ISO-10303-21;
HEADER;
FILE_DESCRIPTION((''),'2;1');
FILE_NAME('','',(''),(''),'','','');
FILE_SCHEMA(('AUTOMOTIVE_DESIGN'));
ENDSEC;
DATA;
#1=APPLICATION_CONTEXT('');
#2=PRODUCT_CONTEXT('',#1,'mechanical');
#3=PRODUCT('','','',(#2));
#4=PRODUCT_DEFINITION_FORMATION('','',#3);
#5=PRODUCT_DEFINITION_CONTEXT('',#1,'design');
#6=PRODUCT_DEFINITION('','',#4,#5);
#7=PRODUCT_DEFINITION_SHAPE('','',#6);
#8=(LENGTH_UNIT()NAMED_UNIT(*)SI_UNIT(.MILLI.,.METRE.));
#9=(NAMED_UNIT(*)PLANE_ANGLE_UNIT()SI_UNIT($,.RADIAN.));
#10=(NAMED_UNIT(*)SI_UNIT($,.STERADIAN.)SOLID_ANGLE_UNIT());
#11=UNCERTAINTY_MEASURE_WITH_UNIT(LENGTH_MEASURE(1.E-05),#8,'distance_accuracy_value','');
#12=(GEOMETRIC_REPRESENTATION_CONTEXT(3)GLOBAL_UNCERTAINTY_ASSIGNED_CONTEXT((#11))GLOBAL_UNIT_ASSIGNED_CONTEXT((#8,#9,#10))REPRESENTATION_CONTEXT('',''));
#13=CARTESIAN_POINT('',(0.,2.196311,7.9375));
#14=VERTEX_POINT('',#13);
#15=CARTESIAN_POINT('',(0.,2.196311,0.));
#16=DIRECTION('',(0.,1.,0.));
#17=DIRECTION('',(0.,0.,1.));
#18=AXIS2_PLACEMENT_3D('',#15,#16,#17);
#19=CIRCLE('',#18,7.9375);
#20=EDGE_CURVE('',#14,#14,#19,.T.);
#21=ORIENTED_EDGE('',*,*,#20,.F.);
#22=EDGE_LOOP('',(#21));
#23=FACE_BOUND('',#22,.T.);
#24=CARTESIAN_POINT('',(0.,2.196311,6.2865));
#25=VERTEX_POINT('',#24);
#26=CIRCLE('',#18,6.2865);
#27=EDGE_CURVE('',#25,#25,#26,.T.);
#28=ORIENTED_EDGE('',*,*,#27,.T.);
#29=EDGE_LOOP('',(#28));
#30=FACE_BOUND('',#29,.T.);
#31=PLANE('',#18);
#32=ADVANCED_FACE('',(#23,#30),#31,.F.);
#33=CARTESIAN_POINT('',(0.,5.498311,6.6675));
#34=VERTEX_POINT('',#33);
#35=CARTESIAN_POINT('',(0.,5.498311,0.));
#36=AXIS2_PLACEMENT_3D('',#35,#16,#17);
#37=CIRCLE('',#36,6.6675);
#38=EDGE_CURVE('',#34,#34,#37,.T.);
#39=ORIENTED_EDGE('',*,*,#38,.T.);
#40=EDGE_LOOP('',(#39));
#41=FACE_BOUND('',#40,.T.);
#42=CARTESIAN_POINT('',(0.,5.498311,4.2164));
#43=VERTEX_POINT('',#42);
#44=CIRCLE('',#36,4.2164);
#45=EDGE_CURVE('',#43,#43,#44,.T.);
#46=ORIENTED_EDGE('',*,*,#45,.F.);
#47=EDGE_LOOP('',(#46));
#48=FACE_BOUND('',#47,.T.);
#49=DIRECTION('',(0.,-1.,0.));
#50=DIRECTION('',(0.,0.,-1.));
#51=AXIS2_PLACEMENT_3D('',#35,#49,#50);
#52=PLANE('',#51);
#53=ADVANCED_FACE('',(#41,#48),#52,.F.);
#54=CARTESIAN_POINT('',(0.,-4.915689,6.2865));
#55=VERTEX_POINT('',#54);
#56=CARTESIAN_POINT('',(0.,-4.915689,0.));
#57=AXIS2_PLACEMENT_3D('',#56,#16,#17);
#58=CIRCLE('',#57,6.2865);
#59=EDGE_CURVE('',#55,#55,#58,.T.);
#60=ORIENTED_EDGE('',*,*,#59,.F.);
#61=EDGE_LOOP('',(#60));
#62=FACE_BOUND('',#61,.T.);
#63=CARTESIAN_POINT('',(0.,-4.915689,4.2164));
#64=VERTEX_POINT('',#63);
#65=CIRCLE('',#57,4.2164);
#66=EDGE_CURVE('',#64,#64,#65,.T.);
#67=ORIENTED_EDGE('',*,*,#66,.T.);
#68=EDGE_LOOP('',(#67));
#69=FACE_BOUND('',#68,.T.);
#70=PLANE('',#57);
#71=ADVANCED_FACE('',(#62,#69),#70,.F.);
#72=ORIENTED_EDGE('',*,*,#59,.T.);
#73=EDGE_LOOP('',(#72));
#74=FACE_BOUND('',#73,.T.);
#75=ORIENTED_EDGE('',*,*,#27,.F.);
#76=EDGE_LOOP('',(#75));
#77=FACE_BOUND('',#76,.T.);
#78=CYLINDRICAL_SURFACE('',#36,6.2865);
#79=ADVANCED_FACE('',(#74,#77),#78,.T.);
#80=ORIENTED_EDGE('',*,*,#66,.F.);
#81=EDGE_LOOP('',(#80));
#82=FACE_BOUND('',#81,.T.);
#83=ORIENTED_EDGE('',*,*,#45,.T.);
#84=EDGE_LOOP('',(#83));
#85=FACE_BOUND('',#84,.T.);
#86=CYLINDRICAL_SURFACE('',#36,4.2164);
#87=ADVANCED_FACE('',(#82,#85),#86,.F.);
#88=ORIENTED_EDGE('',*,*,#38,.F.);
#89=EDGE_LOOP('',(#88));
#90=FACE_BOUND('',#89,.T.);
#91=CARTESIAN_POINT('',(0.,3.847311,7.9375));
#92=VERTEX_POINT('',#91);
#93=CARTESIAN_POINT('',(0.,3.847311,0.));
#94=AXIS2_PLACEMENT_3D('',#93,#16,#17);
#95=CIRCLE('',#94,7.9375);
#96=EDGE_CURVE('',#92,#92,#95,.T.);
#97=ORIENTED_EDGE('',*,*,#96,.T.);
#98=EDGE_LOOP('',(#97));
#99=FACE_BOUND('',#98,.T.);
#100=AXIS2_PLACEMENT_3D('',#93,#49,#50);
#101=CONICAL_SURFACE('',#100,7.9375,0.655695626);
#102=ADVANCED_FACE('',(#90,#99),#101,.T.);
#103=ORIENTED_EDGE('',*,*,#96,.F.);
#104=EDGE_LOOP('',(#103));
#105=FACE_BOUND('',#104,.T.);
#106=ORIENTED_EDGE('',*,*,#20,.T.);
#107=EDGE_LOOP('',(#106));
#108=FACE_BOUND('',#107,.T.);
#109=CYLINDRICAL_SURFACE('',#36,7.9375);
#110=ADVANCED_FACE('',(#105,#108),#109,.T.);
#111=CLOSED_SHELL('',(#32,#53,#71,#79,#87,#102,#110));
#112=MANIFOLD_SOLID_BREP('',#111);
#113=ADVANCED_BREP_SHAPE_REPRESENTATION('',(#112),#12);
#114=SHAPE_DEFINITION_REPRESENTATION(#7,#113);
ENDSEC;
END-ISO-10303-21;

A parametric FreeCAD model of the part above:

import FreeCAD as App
import Part
import Sketcher
Q = App.Units.Quantity

doc = App.newDocument("Part")
body = doc.addObject("PartDesign::Body", "Body")

# Sketch on XY plane
sketch1 = body.newObject("Sketcher::SketchObject", "Sketch")
sketch1.AttachmentSupport = (doc.getObject("XY_Plane"), [""])
sketch1.MapMode = "FlatFace"
sketch1.addGeometry([
    Part.LineSegment(App.Vector(0, 5.5, 0), App.Vector(0, -4.9, 0)),  # 0
    Part.LineSegment(App.Vector(0, -4.9, 0), App.Vector(6.3, -4.9, 0)),  # 1
    Part.LineSegment(App.Vector(6.3, -4.9, 0), App.Vector(6.3, 2.2, 0)),  # 2
    Part.LineSegment(App.Vector(6.3, 2.2, 0), App.Vector(7.9, 2.2, 0)),  # 3
    Part.LineSegment(App.Vector(7.9, 2.2, 0), App.Vector(7.9, 3.8, 0)),  # 4
    Part.LineSegment(App.Vector(7.9, 3.8, 0), App.Vector(6.7, 5.5, 0)),  # 5
    Part.LineSegment(App.Vector(6.7, 5.5, 0), App.Vector(0, 5.5, 0)),  # 6
], False)
sketch1.addConstraint([
    Sketcher.Constraint("Coincident", 0, 2, 1, 1),
    Sketcher.Constraint("Coincident", 1, 2, 2, 1),
    Sketcher.Constraint("Coincident", 2, 2, 3, 1),
    Sketcher.Constraint("Coincident", 3, 2, 4, 1),
    Sketcher.Constraint("Coincident", 4, 2, 5, 1),
    Sketcher.Constraint("Coincident", 5, 2, 6, 1),
    Sketcher.Constraint("Coincident", 6, 2, 0, 1),
    Sketcher.Constraint("Vertical", 0),
    Sketcher.Constraint("Horizontal", 1),
    Sketcher.Constraint("Vertical", 2),
    Sketcher.Constraint("Horizontal", 3),
    Sketcher.Constraint("Vertical", 4),
    Sketcher.Constraint("Horizontal", 6),
    Sketcher.Constraint("PointOnObject", 0, 2, -2),
    Sketcher.Constraint("Equal", 3, 4),
    Sketcher.Constraint("DistanceY", 0, 2, 0, 1, Q("0.41 in")),
    Sketcher.Constraint("DistanceY", 2, 1, 2, 2, Q("0.28 in")),
    Sketcher.Constraint("DistanceX", 3, 1, 3, 2, Q("0.065 in")),
    Sketcher.Constraint("DistanceX", 5, 2, 4, 2, Q("0.05 in")),
    Sketcher.Constraint("DistanceX", 1, 1, 1, 2, Q("0.2475 in")),
    Sketcher.Constraint("DistanceY", 0, 2, -1, 1, Q("4.915689 mm")),
])
revolution = body.newObject("PartDesign::Revolution", "Revolution")
revolution.Profile = sketch1
revolution.ReferenceAxis = (sketch1, ["V_Axis"])
revolution.Angle = 360

# Sketch on XZ plane
sketch2 = body.newObject("Sketcher::SketchObject", "Sketch001")
sketch2.AttachmentSupport = (doc.getObject("XZ_Plane"), [""])
sketch2.MapMode = "FlatFace"
sketch2.AttachmentOffset = App.Placement(App.Vector(0, 0, -5.498311), App.Rotation())
sketch2.addGeometry(Part.Circle(App.Vector(0, 0, 0), App.Vector(0, 0, 1), 4.2), False)
sketch2.addConstraint([
    Sketcher.Constraint("Coincident", 0, 3, -1, 1),
    Sketcher.Constraint("Diameter", 0, Q("0.332 in")),
])
doc.recompute()
hole = body.newObject("PartDesign::Hole", "Hole")
hole.Profile = sketch2
hole.ThreadType = "None"
hole.Diameter = Q("0.332 in")
hole.DepthType = "ThroughAll"
hole.Reversed = True

doc.recompute()
